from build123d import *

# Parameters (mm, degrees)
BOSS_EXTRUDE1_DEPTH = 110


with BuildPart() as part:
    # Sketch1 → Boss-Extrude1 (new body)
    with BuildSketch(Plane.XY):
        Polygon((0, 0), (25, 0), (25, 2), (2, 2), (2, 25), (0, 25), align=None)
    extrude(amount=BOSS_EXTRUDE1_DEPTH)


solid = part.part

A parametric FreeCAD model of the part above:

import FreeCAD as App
import Part
import Sketcher

doc = App.newDocument("Part")
body = doc.addObject("PartDesign::Body", "Body")

sketch1 = body.newObject("Sketcher::SketchObject", "Sketch")
sketch1.AttachmentSupport = (doc.getObject("XY_Plane"), [""])
sketch1.MapMode = "FlatFace"
sketch1.addGeometry([
    Part.LineSegment(App.Vector(0, 0, 0), App.Vector(25, 0, 0)),
    Part.LineSegment(App.Vector(25, 0, 0), App.Vector(25, 2, 0)),
    Part.LineSegment(App.Vector(25, 2, 0), App.Vector(2, 2, 0)),
    Part.LineSegment(App.Vector(2, 2, 0), App.Vector(2, 25, 0)),
    Part.LineSegment(App.Vector(2, 25, 0), App.Vector(0, 25, 0)),
    Part.LineSegment(App.Vector(0, 25, 0), App.Vector(0, 0, 0)),
], False)
sketch1.addConstraint([
    Sketcher.Constraint("Coincident", 0, 2, 1, 1),
    Sketcher.Constraint("Coincident", 1, 2, 2, 1),
    Sketcher.Constraint("Coincident", 2, 2, 3, 1),
    Sketcher.Constraint("Coincident", 3, 2, 4, 1),
    Sketcher.Constraint("Coincident", 4, 2, 5, 1),
    Sketcher.Constraint("Coincident", 5, 2, 0, 1),
    Sketcher.Constraint("Horizontal", 0),
    Sketcher.Constraint("Vertical", 1),
    Sketcher.Constraint("Horizontal", 2),
    Sketcher.Constraint("Vertical", 3),
    Sketcher.Constraint("Horizontal", 4),
    Sketcher.Constraint("Vertical", 5),
    Sketcher.Constraint("Coincident", 5, 2, -1, 1),
    Sketcher.Constraint("Equal", 4, 1),
    Sketcher.Constraint("Equal", 2, 3),
    Sketcher.Constraint("DistanceX", 0, 1, 0, 2, 25.0),
    Sketcher.Constraint("DistanceX", 2, 2, 2, 1, 23.0),
])
pad1 = body.newObject("PartDesign::Pad", "Pad")
pad1.Profile = sketch1
pad1.Length = 110

doc.recompute()
